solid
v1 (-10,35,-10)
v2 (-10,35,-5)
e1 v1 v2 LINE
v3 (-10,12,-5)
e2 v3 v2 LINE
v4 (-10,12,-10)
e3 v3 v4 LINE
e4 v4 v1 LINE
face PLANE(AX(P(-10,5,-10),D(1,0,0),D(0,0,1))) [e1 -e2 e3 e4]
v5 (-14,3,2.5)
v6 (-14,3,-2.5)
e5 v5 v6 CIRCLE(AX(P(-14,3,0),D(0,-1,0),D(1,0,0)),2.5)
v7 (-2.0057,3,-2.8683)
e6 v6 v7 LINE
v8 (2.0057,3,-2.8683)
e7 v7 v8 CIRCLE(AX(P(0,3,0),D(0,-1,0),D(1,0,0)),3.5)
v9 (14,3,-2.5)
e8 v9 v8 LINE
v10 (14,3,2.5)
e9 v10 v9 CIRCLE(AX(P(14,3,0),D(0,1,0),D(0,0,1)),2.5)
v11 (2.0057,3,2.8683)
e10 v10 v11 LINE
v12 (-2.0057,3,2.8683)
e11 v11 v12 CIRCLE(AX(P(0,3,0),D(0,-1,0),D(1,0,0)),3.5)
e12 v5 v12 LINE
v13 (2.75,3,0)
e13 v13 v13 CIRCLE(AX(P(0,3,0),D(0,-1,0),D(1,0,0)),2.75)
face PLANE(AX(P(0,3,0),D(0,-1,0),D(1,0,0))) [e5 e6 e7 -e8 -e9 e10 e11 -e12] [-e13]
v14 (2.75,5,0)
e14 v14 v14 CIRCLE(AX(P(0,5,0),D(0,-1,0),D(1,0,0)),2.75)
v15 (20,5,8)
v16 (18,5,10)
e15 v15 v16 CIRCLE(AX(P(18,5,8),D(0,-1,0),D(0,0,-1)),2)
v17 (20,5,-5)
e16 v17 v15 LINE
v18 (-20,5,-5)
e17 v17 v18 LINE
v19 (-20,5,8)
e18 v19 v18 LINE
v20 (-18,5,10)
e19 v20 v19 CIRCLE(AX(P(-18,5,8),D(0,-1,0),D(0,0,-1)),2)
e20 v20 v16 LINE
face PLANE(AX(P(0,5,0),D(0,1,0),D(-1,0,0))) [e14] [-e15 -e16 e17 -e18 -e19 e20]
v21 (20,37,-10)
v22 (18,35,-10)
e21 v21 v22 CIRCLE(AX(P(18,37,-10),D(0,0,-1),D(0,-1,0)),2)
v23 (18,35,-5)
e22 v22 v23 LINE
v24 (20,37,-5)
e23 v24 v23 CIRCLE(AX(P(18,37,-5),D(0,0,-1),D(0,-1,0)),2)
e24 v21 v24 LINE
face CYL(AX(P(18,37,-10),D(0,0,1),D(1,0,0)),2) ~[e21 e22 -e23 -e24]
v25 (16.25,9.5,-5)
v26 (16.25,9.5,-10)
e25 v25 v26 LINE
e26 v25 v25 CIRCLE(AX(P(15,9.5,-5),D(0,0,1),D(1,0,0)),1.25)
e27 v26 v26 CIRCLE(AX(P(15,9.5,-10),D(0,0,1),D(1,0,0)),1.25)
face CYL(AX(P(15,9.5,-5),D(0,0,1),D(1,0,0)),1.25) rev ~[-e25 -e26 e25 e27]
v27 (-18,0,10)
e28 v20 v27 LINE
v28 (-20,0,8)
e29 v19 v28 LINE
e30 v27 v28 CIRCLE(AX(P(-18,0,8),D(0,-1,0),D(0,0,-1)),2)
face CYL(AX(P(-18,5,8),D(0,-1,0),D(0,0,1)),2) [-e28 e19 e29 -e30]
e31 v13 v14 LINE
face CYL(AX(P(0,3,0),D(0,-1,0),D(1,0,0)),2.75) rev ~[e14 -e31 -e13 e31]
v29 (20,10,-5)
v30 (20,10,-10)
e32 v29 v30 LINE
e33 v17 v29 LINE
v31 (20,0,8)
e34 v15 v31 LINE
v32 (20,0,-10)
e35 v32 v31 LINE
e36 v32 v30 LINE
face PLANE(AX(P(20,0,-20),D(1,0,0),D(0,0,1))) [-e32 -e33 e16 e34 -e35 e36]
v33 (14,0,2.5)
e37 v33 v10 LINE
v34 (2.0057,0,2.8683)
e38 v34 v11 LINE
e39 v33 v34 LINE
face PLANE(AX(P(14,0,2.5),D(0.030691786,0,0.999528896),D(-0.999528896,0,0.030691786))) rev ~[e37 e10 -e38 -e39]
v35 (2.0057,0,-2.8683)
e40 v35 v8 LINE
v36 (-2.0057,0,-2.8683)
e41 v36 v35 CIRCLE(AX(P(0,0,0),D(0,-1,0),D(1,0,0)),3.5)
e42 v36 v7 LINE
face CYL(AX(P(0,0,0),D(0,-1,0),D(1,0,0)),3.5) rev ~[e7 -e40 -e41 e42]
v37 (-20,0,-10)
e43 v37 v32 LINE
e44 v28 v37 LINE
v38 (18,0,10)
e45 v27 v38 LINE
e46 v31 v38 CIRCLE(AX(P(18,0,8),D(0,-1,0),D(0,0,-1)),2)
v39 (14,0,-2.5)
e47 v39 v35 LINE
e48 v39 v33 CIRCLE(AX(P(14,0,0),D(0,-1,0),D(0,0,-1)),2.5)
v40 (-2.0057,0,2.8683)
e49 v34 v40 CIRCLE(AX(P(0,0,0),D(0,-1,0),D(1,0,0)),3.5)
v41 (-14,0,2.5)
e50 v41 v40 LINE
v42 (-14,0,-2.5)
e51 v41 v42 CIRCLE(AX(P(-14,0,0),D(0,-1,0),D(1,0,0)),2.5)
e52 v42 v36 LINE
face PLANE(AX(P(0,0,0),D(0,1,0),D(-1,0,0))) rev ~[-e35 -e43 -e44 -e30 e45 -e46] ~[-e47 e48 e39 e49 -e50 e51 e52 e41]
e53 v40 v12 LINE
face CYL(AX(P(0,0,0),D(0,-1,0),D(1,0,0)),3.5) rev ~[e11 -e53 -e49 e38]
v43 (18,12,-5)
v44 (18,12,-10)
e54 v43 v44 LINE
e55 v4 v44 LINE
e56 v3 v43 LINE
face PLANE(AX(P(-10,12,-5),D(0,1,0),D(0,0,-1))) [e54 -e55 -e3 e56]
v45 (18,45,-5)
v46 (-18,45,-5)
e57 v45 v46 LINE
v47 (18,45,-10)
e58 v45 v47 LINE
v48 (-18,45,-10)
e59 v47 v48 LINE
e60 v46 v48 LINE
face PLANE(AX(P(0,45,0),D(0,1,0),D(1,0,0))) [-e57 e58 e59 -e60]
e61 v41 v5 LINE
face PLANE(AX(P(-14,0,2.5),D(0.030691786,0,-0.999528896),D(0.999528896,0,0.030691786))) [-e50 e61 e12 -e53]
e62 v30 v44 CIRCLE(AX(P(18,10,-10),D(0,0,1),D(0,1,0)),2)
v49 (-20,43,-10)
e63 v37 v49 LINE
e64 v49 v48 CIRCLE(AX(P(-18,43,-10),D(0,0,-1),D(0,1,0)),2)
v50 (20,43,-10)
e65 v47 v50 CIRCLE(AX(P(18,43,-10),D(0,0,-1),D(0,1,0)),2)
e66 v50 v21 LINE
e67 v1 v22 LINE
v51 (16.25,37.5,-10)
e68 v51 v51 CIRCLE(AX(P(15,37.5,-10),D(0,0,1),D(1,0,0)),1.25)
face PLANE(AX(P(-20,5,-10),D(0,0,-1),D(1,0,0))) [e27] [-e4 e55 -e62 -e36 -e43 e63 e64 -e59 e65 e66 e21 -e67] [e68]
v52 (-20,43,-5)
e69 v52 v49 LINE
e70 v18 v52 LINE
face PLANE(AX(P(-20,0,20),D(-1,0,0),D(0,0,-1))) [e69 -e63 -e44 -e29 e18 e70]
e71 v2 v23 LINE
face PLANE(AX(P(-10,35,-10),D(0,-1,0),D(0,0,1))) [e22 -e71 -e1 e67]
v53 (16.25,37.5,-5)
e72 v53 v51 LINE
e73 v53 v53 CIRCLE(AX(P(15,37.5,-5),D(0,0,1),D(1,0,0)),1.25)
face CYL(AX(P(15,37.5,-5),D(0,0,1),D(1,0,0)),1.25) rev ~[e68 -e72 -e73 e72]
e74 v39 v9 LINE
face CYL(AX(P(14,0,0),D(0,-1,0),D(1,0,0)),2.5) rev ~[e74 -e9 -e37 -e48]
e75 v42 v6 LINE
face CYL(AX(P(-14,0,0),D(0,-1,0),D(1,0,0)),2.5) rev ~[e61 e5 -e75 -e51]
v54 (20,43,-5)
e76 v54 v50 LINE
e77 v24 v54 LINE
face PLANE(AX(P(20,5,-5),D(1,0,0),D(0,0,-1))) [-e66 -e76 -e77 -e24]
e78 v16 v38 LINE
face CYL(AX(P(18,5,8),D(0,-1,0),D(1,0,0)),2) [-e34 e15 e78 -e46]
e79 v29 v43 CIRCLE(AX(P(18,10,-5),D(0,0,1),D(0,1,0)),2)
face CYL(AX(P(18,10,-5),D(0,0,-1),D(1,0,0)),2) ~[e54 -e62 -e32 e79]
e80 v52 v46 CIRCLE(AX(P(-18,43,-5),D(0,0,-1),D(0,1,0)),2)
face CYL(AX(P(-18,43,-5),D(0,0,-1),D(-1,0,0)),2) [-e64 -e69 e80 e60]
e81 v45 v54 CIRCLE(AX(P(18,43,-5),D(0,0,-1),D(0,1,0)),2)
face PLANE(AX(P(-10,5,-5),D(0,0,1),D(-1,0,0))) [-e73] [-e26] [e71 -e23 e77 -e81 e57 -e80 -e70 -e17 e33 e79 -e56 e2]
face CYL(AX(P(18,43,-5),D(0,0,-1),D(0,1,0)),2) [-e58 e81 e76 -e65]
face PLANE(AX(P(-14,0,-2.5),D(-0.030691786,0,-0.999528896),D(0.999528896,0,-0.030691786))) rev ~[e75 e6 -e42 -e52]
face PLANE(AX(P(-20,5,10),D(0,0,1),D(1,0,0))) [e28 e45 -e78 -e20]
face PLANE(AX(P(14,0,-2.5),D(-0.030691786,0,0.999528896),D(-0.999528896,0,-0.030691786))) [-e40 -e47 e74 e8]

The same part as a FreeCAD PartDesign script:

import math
import FreeCAD as App
import Part
import Sketcher
Q = App.Units.Quantity


def edges_at(feature, points):
    """Names of the edges that pass closest to the given points."""
    edges = feature.Shape.Edges
    near = lambda p: min(range(len(edges)), key=lambda i: edges[i].distToShape(Part.Vertex(*p))[0])
    return sorted({f"Edge{near(p) + 1}" for p in points})

doc = App.newDocument("Part")
params = doc.addObject("Spreadsheet::Sheet", "Params")
for row, (alias, value) in enumerate([
    ("sketch1_width", "40 mm"),
    ("pad1_length", "5 mm"),
    ("sketch2_width", "10 mm"),
    ("sketch2_height", "5 mm"),
    ("pad2_length", "40 mm"),
    ("sketch3_width", "7 mm"),
    ("sketch3_width2", "10 mm"),
    ("sketch3_height", "5 mm"),
    ("pad3_length", "30 mm"),
    ("sketch4_diameter", "2.5 mm"),
    ("pocket1_length", "5 mm"),
    ("sketch5_width", "40 mm"),
    ("sketch5_height", "10 mm"),
    ("pocket2_length", "5 mm"),
    ("sketch6_radius", "3.5 mm"),
    ("sketch6_radius2", "2.5 mm"),
    ("sketch6_length", "12 mm"),
    ("pocket3_length", "3 mm"),
    ("sketch7_diameter", "5.5 mm"),
    ("pocket4_length", "3 mm"),
    ("fillet_radius", "2 mm"),
], start=1):
    params.set(f"A{row}", alias)
    params.set(f"B{row}", "=" + value)
    params.setAlias(f"B{row}", alias)

body = doc.addObject("PartDesign::Body", "Body")

# Sketch on XZ plane
sketch1 = doc.addObject("Sketcher::SketchObject", "Sketch")
body.addObject(sketch1)
sketch1.AttachmentSupport = (doc.XZ_Plane, [""])
sketch1.MapMode = "FlatFace"
sketch1.addGeometry([
    Part.LineSegment(App.Vector(-20, 20, 0), App.Vector(20, 20, 0)),
    Part.LineSegment(App.Vector(20, 20, 0), App.Vector(20, -20, 0)),
    Part.LineSegment(App.Vector(20, -20, 0), App.Vector(-20, -20, 0)),
    Part.LineSegment(App.Vector(-20, -20, 0), App.Vector(-20, 20, 0)),
], False)
sketch1.addConstraint([
    Sketcher.Constraint("Coincident", 0, 2, 1, 1),
    Sketcher.Constraint("Coincident", 1, 2, 2, 1),
    Sketcher.Constraint("Coincident", 2, 2, 3, 1),
    Sketcher.Constraint("Coincident", 3, 2, 0, 1),
    Sketcher.Constraint("Horizontal", 0),
    Sketcher.Constraint("Vertical", 1),
    Sketcher.Constraint("Horizontal", 2),
    Sketcher.Constraint("Vertical", 3),
    Sketcher.Constraint("Symmetric", 0, 2, 2, 2, -1, 1),
    Sketcher.Constraint("Equal", 2, 1),
    Sketcher.Constraint("DistanceX", 0, 1, 0, 2, Q("40 mm")),
])
sketch1.setExpression("Constraints[10]", "Params.sketch1_width")
pad1 = doc.addObject("PartDesign::Pad", "Pad")
body.addObject(pad1)
pad1.Profile = sketch1
pad1.setExpression("Length", "Params.pad1_length")
pad1.Reversed = True

# Sketch on XZ plane
sketch2 = doc.addObject("Sketcher::SketchObject", "Sketch001")
body.addObject(sketch2)
sketch2.AttachmentSupport = (doc.XZ_Plane, [""])
sketch2.MapMode = "FlatFace"
sketch2.AttachmentOffset = App.Placement(App.Vector(0, 0, -5), App.Rotation())
sketch2.addGeometry([
    Part.LineSegment(App.Vector(-10, -10, 0), App.Vector(-20, -10, 0)),
    Part.LineSegment(App.Vector(-20, -10, 0), App.Vector(-20, -5, 0)),
    Part.LineSegment(App.Vector(-20, -5, 0), App.Vector(-10, -5, 0)),
    Part.LineSegment(App.Vector(-10, -5, 0), App.Vector(-10, -10, 0)),
], False)
sketch2.addConstraint([
    Sketcher.Constraint("Coincident", 0, 2, 1, 1),
    Sketcher.Constraint("Coincident", 1, 2, 2, 1),
    Sketcher.Constraint("Coincident", 2, 2, 3, 1),
    Sketcher.Constraint("Coincident", 3, 2, 0, 1),
    Sketcher.Constraint("Horizontal", 0),
    Sketcher.Constraint("Vertical", 1),
    Sketcher.Constraint("Horizontal", 2),
    Sketcher.Constraint("Vertical", 3),
    Sketcher.Constraint("DistanceX", 0, 2, 0, 1, Q("10 mm")),
    Sketcher.Constraint("DistanceY", 1, 1, 1, 2, Q("5 mm")),
    Sketcher.Constraint("DistanceY", 0, 2, -1, 1, Q("10 mm")),
    Sketcher.Constraint("DistanceX", 2, 2, -1, 1, Q("10 mm")),
])
sketch2.setExpression("Constraints[8]", "Params.sketch2_width")
sketch2.setExpression("Constraints[9]", "Params.sketch2_height")
pad2 = doc.addObject("PartDesign::Pad", "Pad001")
body.addObject(pad2)
pad2.Profile = sketch2
pad2.setExpression("Length", "Params.pad2_length")
pad2.Reversed = True

# Sketch on YZ plane
sketch3 = doc.addObject("Sketcher::SketchObject", "Sketch002")
body.addObject(sketch3)
sketch3.AttachmentSupport = (doc.YZ_Plane, [""])
sketch3.MapMode = "FlatFace"
sketch3.AttachmentOffset = App.Placement(App.Vector(0, 0, -10), App.Rotation())
sketch3.addGeometry([
    Part.LineSegment(App.Vector(5, -10, 0), App.Vector(12, -10, 0)),  # 0
    Part.LineSegment(App.Vector(12, -10, 0), App.Vector(12, -5, 0)),  # 1
    Part.LineSegment(App.Vector(12, -5, 0), App.Vector(5, -5, 0)),  # 2
    Part.LineSegment(App.Vector(5, -5, 0), App.Vector(5, -10, 0)),  # 3
    Part.LineSegment(App.Vector(45, -10, 0), App.Vector(45, -5, 0)),  # 4
    Part.LineSegment(App.Vector(45, -5, 0), App.Vector(35, -5, 0)),  # 5
    Part.LineSegment(App.Vector(35, -5, 0), App.Vector(35, -10, 0)),  # 6
    Part.LineSegment(App.Vector(35, -10, 0), App.Vector(45, -10, 0)),  # 7
], False)
sketch3.addConstraint([
    Sketcher.Constraint("Coincident", 0, 2, 1, 1),
    Sketcher.Constraint("Coincident", 1, 2, 2, 1),
    Sketcher.Constraint("Coincident", 2, 2, 3, 1),
    Sketcher.Constraint("Coincident", 3, 2, 0, 1),
    Sketcher.Constraint("Coincident", 4, 2, 5, 1),
    Sketcher.Constraint("Coincident", 5, 2, 6, 1),
    Sketcher.Constraint("Coincident", 6, 2, 7, 1),
    Sketcher.Constraint("Coincident", 7, 2, 4, 1),
    Sketcher.Constraint("Horizontal", 0),
    Sketcher.Constraint("Vertical", 1),
    Sketcher.Constraint("Horizontal", 2),
    Sketcher.Constraint("Vertical", 3),
    Sketcher.Constraint("Vertical", 4),
    Sketcher.Constraint("Horizontal", 5),
    Sketcher.Constraint("Vertical", 6),
    Sketcher.Constraint("Horizontal", 7),
    Sketcher.Constraint("Horizontal", 2, 2, 4, 2),
    Sketcher.Constraint("Horizontal", 3, 2, 6, 2),
    Sketcher.Constraint("DistanceX", 0, 1, 0, 2, Q("7 mm")),
    Sketcher.Constraint("DistanceX", 5, 2, 5, 1, Q("10 mm")),
    Sketcher.Constraint("DistanceY", 1, 1, 1, 2, Q("5 mm")),
    Sketcher.Constraint("DistanceY", 0, 2, -1, 1, Q("10 mm")),
    Sketcher.Constraint("DistanceX", -1, 1, 2, 2, Q("5 mm")),
    Sketcher.Constraint("DistanceX", 1, 2, 5, 2, Q("23 mm")),
])
sketch3.setExpression("Constraints[18]", "Params.sketch3_width")
sketch3.setExpression("Constraints[19]", "Params.sketch3_width2")
sketch3.setExpression("Constraints[20]", "Params.sketch3_height")
pad3 = doc.addObject("PartDesign::Pad", "Pad002")
body.addObject(pad3)
pad3.Profile = sketch3
pad3.setExpression("Length", "Params.pad3_length")

# Sketch on XY plane
sketch4 = doc.addObject("Sketcher::SketchObject", "Sketch003")
body.addObject(sketch4)
sketch4.AttachmentSupport = (doc.XY_Plane, [""])
sketch4.MapMode = "FlatFace"
sketch4.AttachmentOffset = App.Placement(App.Vector(0, 0, -5), App.Rotation())
sketch4.addGeometry([
    Part.Circle(App.Vector(15, 37.5, 0), App.Vector(0, 0, 1), 1.25),
    Part.Circle(App.Vector(15, 9.5, 0), App.Vector(0, 0, 1), 1.25),
], False)
sketch4.addConstraint([
    Sketcher.Constraint("Equal", 0, 1),
    Sketcher.Constraint("Vertical", 0, 3, 1, 3),
    Sketcher.Constraint("Diameter", 0, Q("2.5 mm")),
    Sketcher.Constraint("DistanceY", 1, 3, 0, 3, Q("28 mm")),
    Sketcher.Constraint("DistanceX", -1, 1, 0, 3, Q("15 mm")),
    Sketcher.Constraint("DistanceY", -1, 1, 0, 3, Q("37.5 mm")),
])
sketch4.setExpression("Constraints[2]", "Params.sketch4_diameter")
pocket1 = doc.addObject("PartDesign::Pocket", "Pocket")
body.addObject(pocket1)
pocket1.Profile = sketch4
pocket1.setExpression("Length", "Params.pocket1_length")

# Sketch on XZ plane
sketch5 = doc.addObject("Sketcher::SketchObject", "Sketch004")
body.addObject(sketch5)
sketch5.AttachmentSupport = (doc.XZ_Plane, [""])
sketch5.MapMode = "FlatFace"
sketch5.AttachmentOffset = App.Placement(App.Vector(0, 0, -5), App.Rotation())
sketch5.addGeometry([
    Part.LineSegment(App.Vector(-20, 20, 0), App.Vector(20, 20, 0)),  # 0
    Part.LineSegment(App.Vector(20, 20, 0), App.Vector(20, 10, 0)),  # 1
    Part.LineSegment(App.Vector(20, 10, 0), App.Vector(-20, 10, 0)),  # 2
    Part.LineSegment(App.Vector(-20, 10, 0), App.Vector(-20, 20, 0)),  # 3
    Part.LineSegment(App.Vector(-20, -20, 0), App.Vector(-20, -10, 0)),  # 4
    Part.LineSegment(App.Vector(-20, -10, 0), App.Vector(20, -10, 0)),  # 5
    Part.LineSegment(App.Vector(20, -10, 0), App.Vector(20, -20, 0)),  # 6
    Part.LineSegment(App.Vector(20, -20, 0), App.Vector(-20, -20, 0)),  # 7
], False)
sketch5.addConstraint([
    Sketcher.Constraint("Coincident", 0, 2, 1, 1),
    Sketcher.Constraint("Coincident", 1, 2, 2, 1),
    Sketcher.Constraint("Coincident", 2, 2, 3, 1),
    Sketcher.Constraint("Coincident", 3, 2, 0, 1),
    Sketcher.Constraint("Coincident", 4, 2, 5, 1),
    Sketcher.Constraint("Coincident", 5, 2, 6, 1),
    Sketcher.Constraint("Coincident", 6, 2, 7, 1),
    Sketcher.Constraint("Coincident", 7, 2, 4, 1),
    Sketcher.Constraint("Horizontal", 0),
    Sketcher.Constraint("Vertical", 1),
    Sketcher.Constraint("Horizontal", 2),
    Sketcher.Constraint("Vertical", 3),
    Sketcher.Constraint("Vertical", 4),
    Sketcher.Constraint("Horizontal", 5),
    Sketcher.Constraint("Vertical", 6),
    Sketcher.Constraint("Horizontal", 7),
    Sketcher.Constraint("Symmetric", 1, 2, 4, 2, -1, 1),
    Sketcher.Constraint("Symmetric", 3, 2, 6, 2, -1, 1),
    Sketcher.Constraint("Vertical", 3, 2, 4, 2),
    Sketcher.Constraint("DistanceX", 0, 1, 0, 2, Q("40 mm")),
    Sketcher.Constraint("DistanceY", 1, 2, 1, 1, Q("10 mm")),
    Sketcher.Constraint("DistanceY", -1, 1, 1, 2, Q("10 mm")),
])
sketch5.setExpression("Constraints[19]", "Params.sketch5_width")
sketch5.setExpression("Constraints[20]", "Params.sketch5_height")
pocket2 = doc.addObject("PartDesign::Pocket", "Pocket001")
body.addObject(pocket2)
pocket2.Profile = sketch5
pocket2.setExpression("Length", "Params.pocket2_length")
pocket2.Reversed = True

# Sketch on XZ plane
sketch6 = doc.addObject("Sketcher::SketchObject", "Sketch005")
body.addObject(sketch6)
sketch6.AttachmentSupport = (doc.XZ_Plane, [""])
sketch6.MapMode = "FlatFace"
sketch6.addGeometry([
    Part.ArcOfCircle(Part.Circle(App.Vector(0, 0, 0), App.Vector(0, 0, 1), 3.5), math.radians(-124.963723), math.radians(-55.036277)),  # 0
    Part.LineSegment(App.Vector(2.0057, -2.8683, 0), App.Vector(14, -2.5, 0)),  # 1
    Part.ArcOfCircle(Part.Circle(App.Vector(14, 0, 0), App.Vector(0, 0, 1), 2.5), math.radians(-90), math.radians(90)),  # 2
    Part.LineSegment(App.Vector(14, 2.5, 0), App.Vector(2.0057, 2.8683, 0)),  # 3
    Part.ArcOfCircle(Part.Circle(App.Vector(0, 0, 0), App.Vector(0, 0, 1), 3.5), math.radians(55.036277), math.radians(124.963723)),  # 4
    Part.LineSegment(App.Vector(-2.0057, 2.8683, 0), App.Vector(-14, 2.5, 0)),  # 5
    Part.ArcOfCircle(Part.Circle(App.Vector(-14, 0, 0), App.Vector(0, 0, 1), 2.5), math.radians(90), math.radians(270)),  # 6
    Part.LineSegment(App.Vector(-14, -2.5, 0), App.Vector(-2.0057, -2.8683, 0)),  # 7
], False)
sketch6.addConstraint([
    Sketcher.Constraint("Coincident", 0, 2, 1, 1),
    Sketcher.Constraint("Coincident", 1, 2, 2, 1),
    Sketcher.Constraint("Coincident", 2, 2, 3, 1),
    Sketcher.Constraint("Coincident", 3, 2, 4, 1),
    Sketcher.Constraint("Coincident", 4, 2, 5, 1),
    Sketcher.Constraint("Coincident", 5, 2, 6, 1),
    Sketcher.Constraint("Coincident", 6, 2, 7, 1),
    Sketcher.Constraint("Coincident", 7, 2, 0, 1),
    Sketcher.Constraint("Coincident", 0, 3, -1, 1),
    Sketcher.Constraint("Coincident", 4, 3, -1, 1),
    Sketcher.Constraint("Equal", 0, 4),
    Sketcher.Constraint("Equal", 2, 6),
    Sketcher.Constraint("Symmetric", 2, 3, 6, 3, -1, 1),
    Sketcher.Constraint("Symmetric", 2, 2, 5, 2, -2),
    Sketcher.Constraint("Parallel", 1, 5),
    Sketcher.Constraint("Parallel", 3, 7),
    Sketcher.Constraint("Horizontal", 3, 2, 4, 2),
    Sketcher.Constraint("Horizontal", 0, 2, 7, 2),
    Sketcher.Constraint("Vertical", 2, 3, 1, 2),
    Sketcher.Constraint("Vertical", 1, 2, 2, 2),
    Sketcher.Constraint("Radius", 0, Q("3.5 mm")),
    Sketcher.Constraint("Radius", 2, Q("2.5 mm")),
    Sketcher.Constraint("Distance", 1, Q("12 mm")),
    Sketcher.Constraint("DistanceX", -1, 1, 2, 3, Q("14 mm")),
])
sketch6.setExpression("Constraints[20]", "Params.sketch6_radius")
sketch6.setExpression("Constraints[21]", "Params.sketch6_radius2")
sketch6.setExpression("Constraints[22]", "Params.sketch6_length")
pocket3 = doc.addObject("PartDesign::Pocket", "Pocket002")
body.addObject(pocket3)
pocket3.Profile = sketch6
pocket3.setExpression("Length", "Params.pocket3_length")

# Sketch on XZ plane
sketch7 = doc.addObject("Sketcher::SketchObject", "Sketch006")
body.addObject(sketch7)
sketch7.AttachmentSupport = (doc.XZ_Plane, [""])
sketch7.MapMode = "FlatFace"
sketch7.AttachmentOffset = App.Placement(App.Vector(0, 0, -3), App.Rotation())
sketch7.addGeometry(Part.Circle(App.Vector(0, 0, 0), App.Vector(0, 0, 1), 2.75), False)
sketch7.addConstraint([
    Sketcher.Constraint("Coincident", 0, 3, -1, 1),
    Sketcher.Constraint("Diameter", 0, Q("5.5 mm")),
])
sketch7.setExpression("Constraints[1]", "Params.sketch7_diameter")
pocket4 = doc.addObject("PartDesign::Pocket", "Pocket003")
body.addObject(pocket4)
pocket4.Profile = sketch7
pocket4.setExpression("Length", "Params.pocket4_length")
doc.recompute()

fillet = doc.addObject("PartDesign::Fillet", "Fillet")
body.addObject(fillet)
fillet.Base = (pocket4, edges_at(pocket4, [
    (20, 45, -7.5),
    (20, 35, -7.5),
    (20, 12, -7.5),
    (20, 2.5, 10),
    (-20, 2.5, 10),
    (-20, 45, -7.5),
]))
fillet.setExpression("Radius", "Params.fillet_radius")

doc.recompute()
